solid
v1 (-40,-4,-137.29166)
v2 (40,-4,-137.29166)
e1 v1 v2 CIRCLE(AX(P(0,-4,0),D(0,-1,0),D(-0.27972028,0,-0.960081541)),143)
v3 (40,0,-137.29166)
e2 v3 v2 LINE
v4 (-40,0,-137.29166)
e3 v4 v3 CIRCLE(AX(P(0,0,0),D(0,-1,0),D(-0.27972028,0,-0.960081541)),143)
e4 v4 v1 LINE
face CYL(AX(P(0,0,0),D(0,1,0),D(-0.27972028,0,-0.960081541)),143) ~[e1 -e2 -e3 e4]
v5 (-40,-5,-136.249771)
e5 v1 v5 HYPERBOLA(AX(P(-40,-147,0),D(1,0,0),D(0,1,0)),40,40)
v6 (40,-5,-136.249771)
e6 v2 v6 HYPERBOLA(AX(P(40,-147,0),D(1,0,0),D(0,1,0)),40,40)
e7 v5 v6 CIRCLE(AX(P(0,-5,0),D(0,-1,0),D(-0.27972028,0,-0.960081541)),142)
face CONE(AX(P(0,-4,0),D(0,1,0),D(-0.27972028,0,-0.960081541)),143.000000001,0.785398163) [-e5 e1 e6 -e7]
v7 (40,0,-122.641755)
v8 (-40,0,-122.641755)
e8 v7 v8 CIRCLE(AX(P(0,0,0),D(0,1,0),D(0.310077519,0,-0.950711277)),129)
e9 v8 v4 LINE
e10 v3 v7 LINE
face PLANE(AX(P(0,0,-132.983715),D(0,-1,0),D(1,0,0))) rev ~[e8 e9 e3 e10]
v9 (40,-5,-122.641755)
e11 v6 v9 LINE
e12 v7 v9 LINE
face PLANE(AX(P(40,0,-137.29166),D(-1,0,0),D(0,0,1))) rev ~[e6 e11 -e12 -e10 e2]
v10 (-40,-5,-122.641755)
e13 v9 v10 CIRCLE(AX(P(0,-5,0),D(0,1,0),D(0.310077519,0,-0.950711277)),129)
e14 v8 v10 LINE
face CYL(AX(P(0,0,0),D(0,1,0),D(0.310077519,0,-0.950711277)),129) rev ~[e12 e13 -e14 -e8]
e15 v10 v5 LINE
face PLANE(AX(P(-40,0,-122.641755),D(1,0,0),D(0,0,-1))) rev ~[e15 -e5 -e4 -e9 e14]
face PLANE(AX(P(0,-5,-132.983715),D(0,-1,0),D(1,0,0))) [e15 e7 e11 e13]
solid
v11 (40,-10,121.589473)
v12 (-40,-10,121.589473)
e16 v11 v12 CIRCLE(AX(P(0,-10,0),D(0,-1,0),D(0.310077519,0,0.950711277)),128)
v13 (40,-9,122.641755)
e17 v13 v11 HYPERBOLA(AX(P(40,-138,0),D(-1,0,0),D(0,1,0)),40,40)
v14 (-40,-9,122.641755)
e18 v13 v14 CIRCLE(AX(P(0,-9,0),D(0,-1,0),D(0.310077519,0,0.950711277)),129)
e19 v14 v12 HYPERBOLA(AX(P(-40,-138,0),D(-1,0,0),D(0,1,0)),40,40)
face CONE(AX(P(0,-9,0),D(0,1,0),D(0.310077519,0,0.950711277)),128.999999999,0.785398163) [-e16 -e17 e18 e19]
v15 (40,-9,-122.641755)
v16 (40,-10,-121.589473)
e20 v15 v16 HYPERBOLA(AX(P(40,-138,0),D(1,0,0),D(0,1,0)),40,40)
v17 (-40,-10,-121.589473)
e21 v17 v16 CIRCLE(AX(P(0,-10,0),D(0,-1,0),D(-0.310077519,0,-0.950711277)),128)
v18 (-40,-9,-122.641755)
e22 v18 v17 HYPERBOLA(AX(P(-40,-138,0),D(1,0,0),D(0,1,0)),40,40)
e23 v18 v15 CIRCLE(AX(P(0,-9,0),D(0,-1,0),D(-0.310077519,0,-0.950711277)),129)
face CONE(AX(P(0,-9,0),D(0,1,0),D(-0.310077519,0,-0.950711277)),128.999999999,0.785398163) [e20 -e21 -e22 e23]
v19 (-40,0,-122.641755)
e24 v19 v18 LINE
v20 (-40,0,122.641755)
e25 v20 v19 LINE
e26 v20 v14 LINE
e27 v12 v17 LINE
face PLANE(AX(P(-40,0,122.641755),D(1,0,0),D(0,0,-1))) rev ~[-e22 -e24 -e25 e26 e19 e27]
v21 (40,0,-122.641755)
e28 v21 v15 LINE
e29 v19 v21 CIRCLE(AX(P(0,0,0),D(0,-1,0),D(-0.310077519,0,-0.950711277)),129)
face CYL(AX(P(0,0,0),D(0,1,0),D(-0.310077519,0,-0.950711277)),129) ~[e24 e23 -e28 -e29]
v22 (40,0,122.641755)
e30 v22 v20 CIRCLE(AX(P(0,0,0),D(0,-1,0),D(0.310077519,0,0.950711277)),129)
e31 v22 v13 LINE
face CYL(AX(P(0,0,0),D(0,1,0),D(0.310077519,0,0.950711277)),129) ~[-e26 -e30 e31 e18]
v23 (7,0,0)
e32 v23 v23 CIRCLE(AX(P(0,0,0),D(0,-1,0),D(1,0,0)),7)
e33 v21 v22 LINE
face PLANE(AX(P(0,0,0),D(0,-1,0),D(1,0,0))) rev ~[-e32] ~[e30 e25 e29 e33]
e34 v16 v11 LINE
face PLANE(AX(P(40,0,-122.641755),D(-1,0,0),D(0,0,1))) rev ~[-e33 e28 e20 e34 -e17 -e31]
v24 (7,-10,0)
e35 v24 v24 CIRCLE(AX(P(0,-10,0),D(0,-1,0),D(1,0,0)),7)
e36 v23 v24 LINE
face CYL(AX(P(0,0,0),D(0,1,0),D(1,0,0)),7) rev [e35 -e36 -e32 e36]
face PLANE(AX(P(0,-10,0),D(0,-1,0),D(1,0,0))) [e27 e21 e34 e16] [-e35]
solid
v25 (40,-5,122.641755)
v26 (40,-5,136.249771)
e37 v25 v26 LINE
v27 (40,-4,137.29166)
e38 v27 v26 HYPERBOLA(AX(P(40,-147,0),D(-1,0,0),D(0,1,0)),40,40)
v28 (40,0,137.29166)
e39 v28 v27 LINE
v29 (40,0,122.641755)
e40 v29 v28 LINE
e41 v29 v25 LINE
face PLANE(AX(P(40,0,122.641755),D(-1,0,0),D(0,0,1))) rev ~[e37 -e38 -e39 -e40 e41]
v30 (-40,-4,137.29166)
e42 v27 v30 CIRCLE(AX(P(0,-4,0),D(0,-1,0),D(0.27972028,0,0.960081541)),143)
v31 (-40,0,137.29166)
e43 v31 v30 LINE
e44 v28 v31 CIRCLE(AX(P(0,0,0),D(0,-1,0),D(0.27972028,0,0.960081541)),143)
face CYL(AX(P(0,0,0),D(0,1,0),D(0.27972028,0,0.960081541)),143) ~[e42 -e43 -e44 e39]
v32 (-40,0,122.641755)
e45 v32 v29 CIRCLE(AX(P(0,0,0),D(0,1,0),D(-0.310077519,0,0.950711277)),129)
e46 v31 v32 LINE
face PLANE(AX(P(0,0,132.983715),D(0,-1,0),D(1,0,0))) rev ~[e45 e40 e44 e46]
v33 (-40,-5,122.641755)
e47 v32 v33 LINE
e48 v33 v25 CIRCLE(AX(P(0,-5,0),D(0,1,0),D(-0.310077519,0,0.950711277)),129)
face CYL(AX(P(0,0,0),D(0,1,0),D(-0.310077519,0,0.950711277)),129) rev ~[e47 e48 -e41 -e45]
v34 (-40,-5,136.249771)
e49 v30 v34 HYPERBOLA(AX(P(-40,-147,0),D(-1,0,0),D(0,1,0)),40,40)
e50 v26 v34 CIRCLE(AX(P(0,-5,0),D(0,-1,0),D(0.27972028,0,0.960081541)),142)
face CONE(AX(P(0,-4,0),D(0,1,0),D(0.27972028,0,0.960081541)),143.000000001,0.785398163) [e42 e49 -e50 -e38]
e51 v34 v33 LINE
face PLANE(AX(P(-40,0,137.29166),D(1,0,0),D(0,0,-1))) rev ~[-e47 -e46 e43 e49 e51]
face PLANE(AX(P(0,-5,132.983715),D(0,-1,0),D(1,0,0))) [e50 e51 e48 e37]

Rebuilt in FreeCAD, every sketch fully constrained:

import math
import FreeCAD as App
import Part
import Sketcher

V = App.Vector
Q = App.Units.Quantity


def edges_at(feature, points):
    """Names of the edges that pass closest to the given points."""
    edges = feature.Shape.Edges
    near = lambda p: min(range(len(edges)), key=lambda i: edges[i].distToShape(Part.Vertex(*p))[0])
    return sorted({f"Edge{near(p) + 1}" for p in points})

doc = App.newDocument("Part")
params = doc.addObject("Spreadsheet::Sheet", "Params")
for row, (alias, value) in enumerate([
    ("sketch1_radius", "143 mm"),
    ("sketch1_radius2", "129 mm"),
    ("pad1_length", "5 mm"),
    ("chamfer_size", "1 mm"),
    ("sketch2_radius", "143 mm"),
    ("sketch2_radius2", "129 mm"),
    ("pad2_length", "5 mm"),
    ("chamfer2_size", "1 mm"),
    ("sketch3_diameter", "14 mm"),
    ("sketch3_radius", "129 mm"),
    ("pad3_length", "10 mm"),
    ("chamfer3_size", "1 mm"),
], start=1):
    params.set(f"A{row}", alias)
    params.set(f"B{row}", "=" + value)
    params.setAlias(f"B{row}", alias)

body = doc.addObject("PartDesign::Body", "Body")

sketch1 = body.newObject("Sketcher::SketchObject", "Sketch")
sketch1.AttachmentSupport = (doc.getObject("XZ_Plane"), [""])
sketch1.MapMode = "FlatFace"
sketch1.addGeometry([
    Part.ArcOfCircle(Part.Circle(V(0, 0, 0), V(0, 0, 1), 143), math.radians(-106), math.radians(-74)),
    Part.LineSegment(V(40, -137, 0), V(40, -123, 0)),
    Part.ArcOfCircle(Part.Circle(V(0, 0, 0), V(0, 0, 1), 129), math.radians(-108), math.radians(-72)),
    Part.LineSegment(V(-40, -123, 0), V(-40, -137, 0)),
], False)
sketch1.addConstraint([
    Sketcher.Constraint("Coincident", 0, 2, 1, 1),
    Sketcher.Constraint("Coincident", 1, 2, 2, 2),
    Sketcher.Constraint("Coincident", 2, 1, 3, 1),
    Sketcher.Constraint("Coincident", 3, 2, 0, 1),
    Sketcher.Constraint("Vertical", 1),
    Sketcher.Constraint("Vertical", 3),
    Sketcher.Constraint("Coincident", 0, 3, -1, 1),
    Sketcher.Constraint("Coincident", 2, 3, -1, 1),
    Sketcher.Constraint("Horizontal", 1, 2, 2, 1),
    Sketcher.Constraint("Radius", 0, Q("143 mm")),
    Sketcher.Constraint("Radius", 2, Q("129 mm")),
    Sketcher.Constraint("DistanceX", -1, 1, 0, 2, Q("40 mm")),
])
sketch1.setExpression("Constraints[9]", "Params.sketch1_radius")
sketch1.setExpression("Constraints[10]", "Params.sketch1_radius2")
pad1 = body.newObject("PartDesign::Pad", "Pad")
pad1.Profile = sketch1
pad1.setExpression("Length", "Params.pad1_length")
doc.recompute()

chamfer = body.newObject("PartDesign::Chamfer", "Chamfer")
chamfer.Base = (pad1, edges_at(pad1, [(0, -5, -143)]))
chamfer.setExpression("Size", "Params.chamfer_size")
body2 = doc.addObject("PartDesign::Body", "Body001")

sketch2 = body2.newObject("Sketcher::SketchObject", "Sketch001")
sketch2.AttachmentSupport = (doc.getObject("XZ_Plane001"), [""])
sketch2.MapMode = "FlatFace"
sketch2.addGeometry([
    Part.LineSegment(V(40, 123, 0), V(40, 137, 0)),
    Part.ArcOfCircle(Part.Circle(V(0, 0, 0), V(0, 0, 1), 143), math.radians(74), math.radians(106)),
    Part.LineSegment(V(-40, 137, 0), V(-40, 123, 0)),
    Part.ArcOfCircle(Part.Circle(V(0, 0, 0), V(0, 0, 1), 129), math.radians(72), math.radians(108)),
], False)
sketch2.addConstraint([
    Sketcher.Constraint("Coincident", 0, 2, 1, 1),
    Sketcher.Constraint("Coincident", 1, 2, 2, 1),
    Sketcher.Constraint("Coincident", 2, 2, 3, 2),
    Sketcher.Constraint("Coincident", 3, 1, 0, 1),
    Sketcher.Constraint("Vertical", 0),
    Sketcher.Constraint("Vertical", 2),
    Sketcher.Constraint("Coincident", 1, 3, -1, 1),
    Sketcher.Constraint("Coincident", 3, 3, -1, 1),
    Sketcher.Constraint("Horizontal", 0, 2, 1, 2),
    Sketcher.Constraint("Radius", 1, Q("143 mm")),
    Sketcher.Constraint("Radius", 3, Q("129 mm")),
    Sketcher.Constraint("DistanceX", -1, 1, 0, 2, Q("40 mm")),
])
sketch2.setExpression("Constraints[9]", "Params.sketch2_radius")
sketch2.setExpression("Constraints[10]", "Params.sketch2_radius2")
pad2 = body2.newObject("PartDesign::Pad", "Pad001")
pad2.Profile = sketch2
pad2.setExpression("Length", "Params.pad2_length")
doc.recompute()

chamfer2 = body2.newObject("PartDesign::Chamfer", "Chamfer001")
chamfer2.Base = (pad2, edges_at(pad2, [(0, -5, 143)]))
chamfer2.setExpression("Size", "Params.chamfer2_size")
body3 = doc.addObject("PartDesign::Body", "Body002")

sketch3 = body3.newObject("Sketcher::SketchObject", "Sketch002")
sketch3.AttachmentSupport = (doc.getObject("XZ_Plane002"), [""])
sketch3.MapMode = "FlatFace"
sketch3.addGeometry([
    Part.LineSegment(V(40, -123, 0), V(40, 123, 0)),
    Part.ArcOfCircle(Part.Circle(V(0, 0, 0), V(0, 0, 1), 129), math.radians(72), math.radians(108)),
    Part.LineSegment(V(-40, 123, 0), V(-40, -123, 0)),
    Part.ArcOfCircle(Part.Circle(V(0, 0, 0), V(0, 0, 1), 129), math.radians(-108), math.radians(-72)),
    Part.Circle(V(0, 0, 0), V(0, 0, 1), 7),
], False)
sketch3.addConstraint([
    Sketcher.Constraint("Coincident", 0, 2, 1, 1),
    Sketcher.Constraint("Coincident", 1, 2, 2, 1),
    Sketcher.Constraint("Coincident", 2, 2, 3, 1),
    Sketcher.Constraint("Coincident", 3, 2, 0, 1),
    Sketcher.Constraint("Vertical", 0),
    Sketcher.Constraint("Vertical", 2),
    Sketcher.Constraint("Coincident", 1, 3, -1, 1),
    Sketcher.Constraint("Coincident", 3, 3, -1, 1),
    Sketcher.Constraint("Coincident", 4, 3, -1, 1),
    Sketcher.Constraint("Equal", 1, 3),
    Sketcher.Constraint("Horizontal", 0, 2, 1, 2),
    Sketcher.Constraint("Diameter", 4, Q("14 mm")),
    Sketcher.Constraint("Radius", 1, Q("129 mm")),
    Sketcher.Constraint("DistanceX", -1, 1, 0, 2, Q("40 mm")),
])
sketch3.setExpression("Constraints[11]", "Params.sketch3_diameter")
sketch3.setExpression("Constraints[12]", "Params.sketch3_radius")
pad3 = body3.newObject("PartDesign::Pad", "Pad002")
pad3.Profile = sketch3
pad3.setExpression("Length", "Params.pad3_length")
doc.recompute()

chamfer3 = body3.newObject("PartDesign::Chamfer", "Chamfer002")
chamfer3.Base = (pad3, edges_at(pad3, [(0, -10, -129), (0, -10, 129)]))
chamfer3.setExpression("Size", "Params.chamfer3_size")

doc.recompute()
